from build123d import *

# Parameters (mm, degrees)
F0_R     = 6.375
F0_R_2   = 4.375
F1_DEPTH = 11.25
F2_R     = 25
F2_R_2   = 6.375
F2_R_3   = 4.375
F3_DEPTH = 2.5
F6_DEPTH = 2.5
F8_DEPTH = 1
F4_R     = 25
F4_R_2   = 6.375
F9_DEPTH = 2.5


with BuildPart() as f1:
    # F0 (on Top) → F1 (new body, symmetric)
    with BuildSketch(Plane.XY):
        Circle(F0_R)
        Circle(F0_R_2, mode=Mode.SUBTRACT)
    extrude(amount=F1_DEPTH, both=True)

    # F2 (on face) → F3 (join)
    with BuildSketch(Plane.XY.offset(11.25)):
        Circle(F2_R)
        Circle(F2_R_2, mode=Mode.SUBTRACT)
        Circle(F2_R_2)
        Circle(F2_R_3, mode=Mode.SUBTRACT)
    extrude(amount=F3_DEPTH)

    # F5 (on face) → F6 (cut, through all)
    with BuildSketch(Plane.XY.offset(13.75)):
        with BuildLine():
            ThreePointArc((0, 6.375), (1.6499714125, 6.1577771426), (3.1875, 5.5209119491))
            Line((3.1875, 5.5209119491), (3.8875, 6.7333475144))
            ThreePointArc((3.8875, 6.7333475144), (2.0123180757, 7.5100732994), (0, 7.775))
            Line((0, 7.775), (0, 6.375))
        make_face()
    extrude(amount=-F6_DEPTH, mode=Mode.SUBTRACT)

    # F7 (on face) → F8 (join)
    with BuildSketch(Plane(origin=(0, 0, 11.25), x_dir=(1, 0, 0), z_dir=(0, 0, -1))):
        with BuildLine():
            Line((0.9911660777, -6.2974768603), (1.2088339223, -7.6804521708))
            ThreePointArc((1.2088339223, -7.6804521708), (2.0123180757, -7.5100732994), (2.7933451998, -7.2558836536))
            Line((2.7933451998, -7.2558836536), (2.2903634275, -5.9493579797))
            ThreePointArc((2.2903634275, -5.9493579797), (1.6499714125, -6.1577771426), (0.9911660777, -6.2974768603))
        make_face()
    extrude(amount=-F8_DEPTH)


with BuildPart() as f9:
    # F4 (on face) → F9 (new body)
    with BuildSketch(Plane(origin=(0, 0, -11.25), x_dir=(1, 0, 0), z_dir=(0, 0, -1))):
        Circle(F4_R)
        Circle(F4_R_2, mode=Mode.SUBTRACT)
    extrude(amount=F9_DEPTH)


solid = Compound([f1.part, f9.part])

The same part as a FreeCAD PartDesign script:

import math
import FreeCAD as App
import Part
import Sketcher
from FreeCAD import Vector
Q = App.Units.Quantity

doc = App.newDocument("Part")
body = doc.addObject("PartDesign::Body", "Body")

# Sketch on XY plane
sketch1 = body.newObject("Sketcher::SketchObject", "Sketch")
sketch1.AttachmentSupport = (doc.getObject("XY_Plane"), [""])
sketch1.MapMode = "FlatFace"
sketch1.addGeometry(Part.Circle(Vector(0, 0, 0), Vector(0, 0, 1), 6.4), False)
sketch1.addGeometry(Part.Circle(Vector(0, 0, 0), Vector(0, 0, 1), 4.4), False)
sketch1.addConstraint(Sketcher.Constraint("Coincident", 0, 3, -1, 1))
sketch1.addConstraint(Sketcher.Constraint("Coincident", 1, 3, -1, 1))
sketch1.addConstraint(Sketcher.Constraint("Diameter", 0, 12.75))
sketch1.addConstraint(Sketcher.Constraint("Diameter", 1, 8.75))
pad1 = body.newObject("PartDesign::Pad", "Pad")
pad1.Profile = sketch1
pad1.Length = 22.5
pad1.Midplane = True

# Sketch on XY plane
sketch2 = body.newObject("Sketcher::SketchObject", "Sketch001")
sketch2.AttachmentSupport = (doc.getObject("XY_Plane"), [""])
sketch2.MapMode = "FlatFace"
sketch2.AttachmentOffset = App.Placement(Vector(0, 0, 11.25), App.Rotation())
sketch2.addGeometry(Part.Circle(Vector(0, 0, 0), Vector(0, 0, 1), 25), False)
sketch2.addGeometry(Part.Circle(Vector(0, 0, 0), Vector(0, 0, 1), 4.4), False)
sketch2.addConstraint(Sketcher.Constraint("Coincident", 0, 3, -1, 1))
sketch2.addConstraint(Sketcher.Constraint("Coincident", 1, 3, -1, 1))
sketch2.addConstraint(Sketcher.Constraint("Diameter", 0, 50.0))
sketch2.addConstraint(Sketcher.Constraint("Diameter", 1, 8.75))
pad2 = body.newObject("PartDesign::Pad", "Pad001")
pad2.Profile = sketch2
pad2.Length = 2.5

# Sketch on XY plane
sketch3 = body.newObject("Sketcher::SketchObject", "Sketch002")
sketch3.AttachmentSupport = (doc.getObject("XY_Plane"), [""])
sketch3.MapMode = "FlatFace"
sketch3.AttachmentOffset = App.Placement(Vector(0, 0, 13.75), App.Rotation())
sketch3.addGeometry(Part.ArcOfCircle(Part.Circle(Vector(0, 0, 0), Vector(0, 0, 1), 6.4), math.radians(60), math.radians(90)), False)
sketch3.addGeometry(Part.LineSegment(Vector(3.2, 5.5, 0), Vector(3.9, 6.7, 0)), False)
sketch3.addGeometry(Part.ArcOfCircle(Part.Circle(Vector(0, 0, 0), Vector(0, 0, 1), 7.8), math.radians(60), math.radians(90)), False)
sketch3.addGeometry(Part.LineSegment(Vector(0, 7.8, 0), Vector(0, 6.4, 0)), False)
sketch3.addConstraint(Sketcher.Constraint("Coincident", 0, 1, 1, 1))
sketch3.addConstraint(Sketcher.Constraint("Coincident", 1, 2, 2, 1))
sketch3.addConstraint(Sketcher.Constraint("Coincident", 2, 2, 3, 1))
sketch3.addConstraint(Sketcher.Constraint("Coincident", 3, 2, 0, 2))
sketch3.addConstraint(Sketcher.Constraint("Vertical", 3))
sketch3.addConstraint(Sketcher.Constraint("Coincident", 0, 3, -1, 1))
sketch3.addConstraint(Sketcher.Constraint("Coincident", 2, 3, -1, 1))
sketch3.addConstraint(Sketcher.Constraint("PointOnObject", 2, 2, -2))
sketch3.addConstraint(Sketcher.Constraint("Angle", 1, Q("60 deg")))
sketch3.addConstraint(Sketcher.Constraint("DistanceY", 3, 2, 3, 1, 1.4))
sketch3.addConstraint(Sketcher.Constraint("Radius", 0, 6.375))
sketch3.addConstraint(Sketcher.Constraint("DistanceX", -1, 1, 0, 1, 3.1875))
pocket1 = body.newObject("PartDesign::Pocket", "Pocket")
pocket1.Profile = sketch3
pocket1.Type = "ThroughAll"

# Sketch on XY plane
sketch4 = body.newObject("Sketcher::SketchObject", "Sketch003")
sketch4.AttachmentSupport = (doc.getObject("XY_Plane"), [""])
sketch4.MapMode = "FlatFace"
sketch4.AttachmentOffset = App.Placement(Vector(0, 0, 11.25), App.Rotation())
sketch4.addGeometry(Part.LineSegment(Vector(1, 6.3, 0), Vector(1.2, 7.7, 0)), False)
sketch4.addGeometry(Part.ArcOfCircle(Part.Circle(Vector(0, 0, 0), Vector(0, 0, 1), 7.8), math.radians(68.94), math.radians(81.06)), False)
sketch4.addGeometry(Part.LineSegment(Vector(2.8, 7.3, 0), Vector(2.3, 5.9, 0)), False)
sketch4.addGeometry(Part.ArcOfCircle(Part.Circle(Vector(0, 0, 0), Vector(0, 0, 1), 6.4), math.radians(68.94), math.radians(81.06)), False)
sketch4.addConstraint(Sketcher.Constraint("Coincident", 0, 2, 1, 2))
sketch4.addConstraint(Sketcher.Constraint("Coincident", 1, 1, 2, 1))
sketch4.addConstraint(Sketcher.Constraint("Coincident", 2, 2, 3, 1))
sketch4.addConstraint(Sketcher.Constraint("Coincident", 3, 2, 0, 1))
sketch4.addConstraint(Sketcher.Constraint("Coincident", 1, 3, -1, 1))
sketch4.addConstraint(Sketcher.Constraint("Coincident", 3, 3, -1, 1))
sketch4.addConstraint(Sketcher.Constraint("Radius", 1, 7.775))
sketch4.addConstraint(Sketcher.Constraint("Radius", 3, 6.375))
sketch4.addConstraint(Sketcher.Constraint("DistanceX", 0, 2, 1, 1, 1.584511))
sketch4.addConstraint(Sketcher.Constraint("DistanceY", 1, 1, 0, 2, 0.424569))
sketch4.addConstraint(Sketcher.Constraint("DistanceX", 2, 2, 1, 1, 0.502982))
sketch4.addConstraint(Sketcher.Constraint("DistanceY", 2, 2, 3, 2, 0.348119))
pad3 = body.newObject("PartDesign::Pad", "Pad002")
pad3.Profile = sketch4
pad3.Length = 1
body2 = doc.addObject("PartDesign::Body", "Body001")

# Sketch on XY plane
sketch5 = body2.newObject("Sketcher::SketchObject", "Sketch004")
sketch5.AttachmentSupport = (doc.getObject("XY_Plane001"), [""])
sketch5.MapMode = "FlatFace"
sketch5.AttachmentOffset = App.Placement(Vector(0, 0, -11.25), App.Rotation())
sketch5.addGeometry(Part.Circle(Vector(0, 0, 0), Vector(0, 0, 1), 25), False)
sketch5.addGeometry(Part.Circle(Vector(0, 0, 0), Vector(0, 0, 1), 6), False)
sketch5.addConstraint(Sketcher.Constraint("Coincident", 0, 3, -1, 1))
sketch5.addConstraint(Sketcher.Constraint("Coincident", 1, 3, -1, 1))
sketch5.addConstraint(Sketcher.Constraint("Diameter", 0, 50.0))
sketch5.addConstraint(Sketcher.Constraint("Diameter", 1, 12.75))
pad4 = body2.newObject("PartDesign::Pad", "Pad003")
pad4.Profile = sketch5
pad4.Length = 2.5
pad4.Reversed = True

doc.recompute()
